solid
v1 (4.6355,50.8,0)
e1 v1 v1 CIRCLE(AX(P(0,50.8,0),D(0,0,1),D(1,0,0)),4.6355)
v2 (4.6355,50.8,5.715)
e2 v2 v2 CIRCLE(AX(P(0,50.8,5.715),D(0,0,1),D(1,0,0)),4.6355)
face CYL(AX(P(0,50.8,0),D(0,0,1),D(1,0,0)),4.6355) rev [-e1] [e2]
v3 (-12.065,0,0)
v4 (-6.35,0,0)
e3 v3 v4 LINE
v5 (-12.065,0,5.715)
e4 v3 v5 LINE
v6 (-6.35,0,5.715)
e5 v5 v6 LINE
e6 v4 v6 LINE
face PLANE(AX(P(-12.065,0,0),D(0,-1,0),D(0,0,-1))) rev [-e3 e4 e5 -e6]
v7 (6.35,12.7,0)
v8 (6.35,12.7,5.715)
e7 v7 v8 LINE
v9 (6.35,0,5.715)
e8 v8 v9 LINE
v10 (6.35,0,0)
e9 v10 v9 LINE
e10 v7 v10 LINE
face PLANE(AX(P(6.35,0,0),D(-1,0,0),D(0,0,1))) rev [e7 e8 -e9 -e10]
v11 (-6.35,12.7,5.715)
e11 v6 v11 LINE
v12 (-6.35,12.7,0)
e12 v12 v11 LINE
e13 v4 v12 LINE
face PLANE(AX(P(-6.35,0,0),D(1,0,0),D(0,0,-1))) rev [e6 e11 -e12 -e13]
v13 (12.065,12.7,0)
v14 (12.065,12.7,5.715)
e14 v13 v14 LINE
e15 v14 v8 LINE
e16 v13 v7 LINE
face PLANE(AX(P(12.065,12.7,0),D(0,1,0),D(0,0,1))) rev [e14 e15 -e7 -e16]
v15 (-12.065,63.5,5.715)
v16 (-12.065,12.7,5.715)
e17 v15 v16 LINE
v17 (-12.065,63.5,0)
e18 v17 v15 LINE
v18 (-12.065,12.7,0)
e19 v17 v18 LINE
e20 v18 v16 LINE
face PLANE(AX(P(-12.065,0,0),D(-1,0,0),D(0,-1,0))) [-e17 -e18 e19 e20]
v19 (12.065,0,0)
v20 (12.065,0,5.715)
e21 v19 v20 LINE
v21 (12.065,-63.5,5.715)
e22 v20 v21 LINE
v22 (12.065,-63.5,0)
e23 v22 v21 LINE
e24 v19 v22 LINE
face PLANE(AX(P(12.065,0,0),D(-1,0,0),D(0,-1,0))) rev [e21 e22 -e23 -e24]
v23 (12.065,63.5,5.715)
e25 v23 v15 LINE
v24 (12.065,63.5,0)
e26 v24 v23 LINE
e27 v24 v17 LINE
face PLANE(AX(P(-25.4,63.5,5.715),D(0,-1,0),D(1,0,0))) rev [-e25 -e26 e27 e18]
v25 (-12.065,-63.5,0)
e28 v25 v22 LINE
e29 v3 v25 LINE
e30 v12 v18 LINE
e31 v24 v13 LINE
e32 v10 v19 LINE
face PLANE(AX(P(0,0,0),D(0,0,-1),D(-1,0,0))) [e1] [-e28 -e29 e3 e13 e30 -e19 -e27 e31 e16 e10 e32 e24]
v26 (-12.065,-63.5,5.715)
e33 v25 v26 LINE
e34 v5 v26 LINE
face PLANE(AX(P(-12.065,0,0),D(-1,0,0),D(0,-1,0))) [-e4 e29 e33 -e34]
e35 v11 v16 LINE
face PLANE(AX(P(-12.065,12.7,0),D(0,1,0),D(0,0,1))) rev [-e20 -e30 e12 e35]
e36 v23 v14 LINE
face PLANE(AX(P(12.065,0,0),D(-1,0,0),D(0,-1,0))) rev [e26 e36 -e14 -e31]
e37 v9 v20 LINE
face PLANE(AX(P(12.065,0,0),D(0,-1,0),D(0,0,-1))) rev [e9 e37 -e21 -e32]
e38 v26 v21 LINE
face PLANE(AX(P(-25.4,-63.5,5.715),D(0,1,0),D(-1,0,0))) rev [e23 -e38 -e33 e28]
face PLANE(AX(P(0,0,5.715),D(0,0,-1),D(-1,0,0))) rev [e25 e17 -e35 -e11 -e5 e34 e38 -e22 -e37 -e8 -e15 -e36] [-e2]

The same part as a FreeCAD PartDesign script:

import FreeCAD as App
import Part
import Sketcher
from FreeCAD import Vector
Q = App.Units.Quantity


def add_polygon(sketch, points):
    """Adds a closed chain of lines whose ends are joined by coincident constraints."""
    first, n = sketch.GeometryCount, len(points)
    for a, b in zip(points, points[1:] + points[:1]):
        sketch.addGeometry(Part.LineSegment(App.Vector(*a, 0), App.Vector(*b, 0)), False)
    for i in range(n):
        sketch.addConstraint(Sketcher.Constraint("Coincident", first + i, 2, first + (i + 1) % n, 1))

doc = App.newDocument("Part")
body = doc.addObject("PartDesign::Body", "Body")

# Sketch on XY plane
sketch1 = body.newObject("Sketcher::SketchObject", "Sketch")
sketch1.AttachmentSupport = (doc.getObject("XY_Plane"), [""])
sketch1.MapMode = "FlatFace"
add_polygon(sketch1, [(-25, 64), (-25, -64), (25, -64), (25, 64)])  # lines 0-3
sketch1.addConstraint(Sketcher.Constraint("Vertical", 0))
sketch1.addConstraint(Sketcher.Constraint("Horizontal", 1))
sketch1.addConstraint(Sketcher.Constraint("Vertical", 2))
sketch1.addConstraint(Sketcher.Constraint("Horizontal", 3))
sketch1.addConstraint(Sketcher.Constraint("Symmetric", 0, 2, 2, 2, -1, 1))
sketch1.addConstraint(Sketcher.Constraint("DistanceX", 1, 1, 1, 2, Q("2 in")))
sketch1.addConstraint(Sketcher.Constraint("DistanceY", 0, 2, 0, 1, Q("5 in")))
pad1 = body.newObject("PartDesign::Pad", "Pad")
pad1.Profile = sketch1
pad1.Length = Q("0.225 in")

# Sketch on XY plane
sketch2 = body.newObject("Sketcher::SketchObject", "Sketch001")
sketch2.AttachmentSupport = (doc.getObject("XY_Plane"), [""])
sketch2.MapMode = "FlatFace"
sketch2.AttachmentOffset = App.Placement(Vector(0, 0, 0.225 * 25.4), App.Rotation())
sketch2.addGeometry(Part.Circle(Vector(0, 50.8, 0), Vector(0, 0, 1), 4.6), False)  # 0
add_polygon(sketch2, [(-12.1, 12.7), (-12.1, 0), (-6.3, 0), (-6.3, 12.7)])  # lines 1-4
add_polygon(sketch2, [(6.3, 12.7), (6.3, 0), (12.1, 0), (12.1, 12.7)])  # lines 5-8
sketch2.addConstraint(Sketcher.Constraint("Vertical", 1))
sketch2.addConstraint(Sketcher.Constraint("Horizontal", 2))
sketch2.addConstraint(Sketcher.Constraint("Vertical", 3))
sketch2.addConstraint(Sketcher.Constraint("Horizontal", 4))
sketch2.addConstraint(Sketcher.Constraint("Vertical", 5))
sketch2.addConstraint(Sketcher.Constraint("Horizontal", 6))
sketch2.addConstraint(Sketcher.Constraint("Vertical", 7))
sketch2.addConstraint(Sketcher.Constraint("Horizontal", 8))
sketch2.addConstraint(Sketcher.Constraint("Symmetric", 2, 2, 5, 2, -1, 1))
sketch2.addConstraint(Sketcher.Constraint("Symmetric", 1, 2, 6, 2, -2))
sketch2.addConstraint(Sketcher.Constraint("PointOnObject", 0, 3, -2))
sketch2.addConstraint(Sketcher.Constraint("Horizontal", 4, 2, 7, 2))
sketch2.addConstraint(Sketcher.Constraint("Diameter", 0, Q("0.365 in")))
sketch2.addConstraint(Sketcher.Constraint("DistanceY", 1, 2, 1, 1, Q("0.5 in")))
sketch2.addConstraint(Sketcher.Constraint("DistanceY", -1, 1, 0, 3, Q("2 in")))
sketch2.addConstraint(Sketcher.Constraint("DistanceX", 2, 2, 5, 2, Q("0.5 in")))
sketch2.addConstraint(Sketcher.Constraint("DistanceX", 2, 1, 2, 2, Q("0.225 in")))
pocket1 = body.newObject("PartDesign::Pocket", "Pocket")
pocket1.Profile = sketch2
pocket1.Type = "ThroughAll"

# Sketch on XY plane
sketch3 = body.newObject("Sketcher::SketchObject", "Sketch002")
sketch3.AttachmentSupport = (doc.getObject("XY_Plane"), [""])
sketch3.MapMode = "FlatFace"
sketch3.AttachmentOffset = App.Placement(Vector(0, 0, 0.225 * 25.4), App.Rotation())
add_polygon(sketch3, [(-12, 64), (-25, 64), (-25, -64), (-12, -64)])  # lines 0-3
add_polygon(sketch3, [(25, 64), (12, 64), (12, -64), (25, -64)])  # lines 4-7
sketch3.addConstraint(Sketcher.Constraint("Horizontal", 0))
sketch3.addConstraint(Sketcher.Constraint("Vertical", 1))
sketch3.addConstraint(Sketcher.Constraint("Horizontal", 2))
sketch3.addConstraint(Sketcher.Constraint("Vertical", 3))
sketch3.addConstraint(Sketcher.Constraint("Horizontal", 4))
sketch3.addConstraint(Sketcher.Constraint("Vertical", 5))
sketch3.addConstraint(Sketcher.Constraint("Horizontal", 6))
sketch3.addConstraint(Sketcher.Constraint("Vertical", 7))
sketch3.addConstraint(Sketcher.Constraint("Symmetric", 2, 2, 4, 2, -1, 1))
sketch3.addConstraint(Sketcher.Constraint("Symmetric", 0, 2, 6, 2, -1, 1))
sketch3.addConstraint(Sketcher.Constraint("Horizontal", 3, 2, 4, 2))
sketch3.addConstraint(Sketcher.Constraint("DistanceY", 1, 2, 1, 1, Q("5 in")))
sketch3.addConstraint(Sketcher.Constraint("DistanceX", 0, 2, -1, 1, Q("1 in")))
sketch3.addConstraint(Sketcher.Constraint("DistanceX", 0, 2, 0, 1, Q("0.525 in")))
pocket2 = body.newObject("PartDesign::Pocket", "Pocket001")
pocket2.Profile = sketch3
pocket2.Type = "ThroughAll"

doc.recompute()
